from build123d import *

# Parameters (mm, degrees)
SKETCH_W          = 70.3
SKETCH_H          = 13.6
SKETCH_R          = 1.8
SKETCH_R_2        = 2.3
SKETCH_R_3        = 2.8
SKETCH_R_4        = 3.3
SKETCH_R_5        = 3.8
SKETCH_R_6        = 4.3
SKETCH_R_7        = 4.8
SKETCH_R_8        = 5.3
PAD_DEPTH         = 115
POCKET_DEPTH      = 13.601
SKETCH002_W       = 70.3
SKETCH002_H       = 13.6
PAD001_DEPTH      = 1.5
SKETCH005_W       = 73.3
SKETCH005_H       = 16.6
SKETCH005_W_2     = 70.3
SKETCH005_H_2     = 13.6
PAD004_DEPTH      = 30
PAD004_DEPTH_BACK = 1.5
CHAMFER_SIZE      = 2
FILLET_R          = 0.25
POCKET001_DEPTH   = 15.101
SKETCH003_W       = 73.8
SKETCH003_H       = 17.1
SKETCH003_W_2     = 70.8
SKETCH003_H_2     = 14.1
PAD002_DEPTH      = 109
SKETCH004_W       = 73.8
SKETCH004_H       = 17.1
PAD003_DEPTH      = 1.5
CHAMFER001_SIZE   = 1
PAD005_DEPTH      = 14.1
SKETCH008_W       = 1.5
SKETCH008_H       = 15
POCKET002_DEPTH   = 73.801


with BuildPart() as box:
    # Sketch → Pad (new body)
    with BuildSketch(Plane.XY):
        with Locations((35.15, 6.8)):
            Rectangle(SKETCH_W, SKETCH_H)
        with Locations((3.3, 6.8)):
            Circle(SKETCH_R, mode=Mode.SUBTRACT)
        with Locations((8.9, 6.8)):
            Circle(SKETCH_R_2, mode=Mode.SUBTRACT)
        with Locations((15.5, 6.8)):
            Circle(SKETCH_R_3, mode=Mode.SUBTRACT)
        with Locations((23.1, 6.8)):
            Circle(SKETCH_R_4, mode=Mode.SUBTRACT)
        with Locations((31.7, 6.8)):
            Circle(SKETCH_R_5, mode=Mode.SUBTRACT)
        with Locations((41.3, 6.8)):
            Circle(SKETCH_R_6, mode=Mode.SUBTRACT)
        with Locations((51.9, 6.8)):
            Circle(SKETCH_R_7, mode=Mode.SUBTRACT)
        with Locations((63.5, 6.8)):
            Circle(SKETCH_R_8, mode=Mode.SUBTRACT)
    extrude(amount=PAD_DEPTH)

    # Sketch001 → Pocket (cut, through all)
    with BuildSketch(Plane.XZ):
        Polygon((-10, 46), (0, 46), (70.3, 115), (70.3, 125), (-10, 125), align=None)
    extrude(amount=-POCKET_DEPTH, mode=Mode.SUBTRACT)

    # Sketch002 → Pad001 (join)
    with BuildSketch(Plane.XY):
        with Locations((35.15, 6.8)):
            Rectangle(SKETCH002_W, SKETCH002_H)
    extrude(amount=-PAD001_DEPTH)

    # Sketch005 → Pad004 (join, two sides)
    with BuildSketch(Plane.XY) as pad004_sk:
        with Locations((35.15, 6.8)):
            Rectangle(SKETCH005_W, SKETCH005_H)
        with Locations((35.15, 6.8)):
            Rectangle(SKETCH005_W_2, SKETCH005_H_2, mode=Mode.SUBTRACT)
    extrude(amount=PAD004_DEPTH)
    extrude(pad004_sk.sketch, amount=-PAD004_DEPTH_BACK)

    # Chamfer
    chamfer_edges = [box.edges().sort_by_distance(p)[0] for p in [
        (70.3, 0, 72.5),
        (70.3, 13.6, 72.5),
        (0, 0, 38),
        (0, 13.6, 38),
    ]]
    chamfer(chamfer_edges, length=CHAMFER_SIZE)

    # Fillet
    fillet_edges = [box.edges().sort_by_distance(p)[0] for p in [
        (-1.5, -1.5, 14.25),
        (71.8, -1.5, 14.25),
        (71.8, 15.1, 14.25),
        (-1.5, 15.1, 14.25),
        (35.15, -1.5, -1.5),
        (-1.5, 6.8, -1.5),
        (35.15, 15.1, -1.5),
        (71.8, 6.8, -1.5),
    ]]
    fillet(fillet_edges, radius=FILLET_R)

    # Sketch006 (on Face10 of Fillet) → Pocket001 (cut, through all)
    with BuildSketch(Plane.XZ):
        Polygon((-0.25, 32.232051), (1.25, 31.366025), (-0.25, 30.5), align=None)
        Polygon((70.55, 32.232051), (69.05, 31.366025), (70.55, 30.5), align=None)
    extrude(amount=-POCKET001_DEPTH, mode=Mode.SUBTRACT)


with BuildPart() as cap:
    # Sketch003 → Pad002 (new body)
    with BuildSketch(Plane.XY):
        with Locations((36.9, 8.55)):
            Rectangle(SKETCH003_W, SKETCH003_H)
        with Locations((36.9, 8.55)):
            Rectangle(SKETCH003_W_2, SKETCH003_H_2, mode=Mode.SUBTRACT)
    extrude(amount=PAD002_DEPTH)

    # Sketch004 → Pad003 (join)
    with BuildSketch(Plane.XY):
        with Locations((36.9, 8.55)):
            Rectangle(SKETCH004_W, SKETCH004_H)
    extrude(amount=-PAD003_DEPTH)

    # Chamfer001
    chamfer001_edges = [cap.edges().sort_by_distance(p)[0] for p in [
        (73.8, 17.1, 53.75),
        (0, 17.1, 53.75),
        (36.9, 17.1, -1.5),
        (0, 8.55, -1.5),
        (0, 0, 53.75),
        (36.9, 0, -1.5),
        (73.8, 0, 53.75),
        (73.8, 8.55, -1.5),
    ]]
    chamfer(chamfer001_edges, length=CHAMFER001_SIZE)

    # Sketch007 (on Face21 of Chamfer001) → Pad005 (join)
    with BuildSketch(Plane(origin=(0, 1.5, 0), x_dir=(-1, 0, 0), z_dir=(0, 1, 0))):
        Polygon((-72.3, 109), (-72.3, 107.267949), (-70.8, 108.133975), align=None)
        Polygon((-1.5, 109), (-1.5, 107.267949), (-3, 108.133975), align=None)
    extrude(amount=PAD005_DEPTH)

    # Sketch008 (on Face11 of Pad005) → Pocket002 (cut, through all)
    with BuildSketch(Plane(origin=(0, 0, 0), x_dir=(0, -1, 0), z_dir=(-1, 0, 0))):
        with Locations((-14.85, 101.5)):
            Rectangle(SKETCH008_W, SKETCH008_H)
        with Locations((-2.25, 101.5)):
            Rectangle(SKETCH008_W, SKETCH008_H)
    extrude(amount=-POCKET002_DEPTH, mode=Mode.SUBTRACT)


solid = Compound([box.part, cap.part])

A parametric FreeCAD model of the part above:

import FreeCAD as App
import Part
import Sketcher
from FreeCAD import Vector
Q = App.Units.Quantity


def edges_at(feature, points):
    """Names of the edges that pass closest to the given points."""
    edges = feature.Shape.Edges
    near = lambda p: min(range(len(edges)), key=lambda i: edges[i].distToShape(Part.Vertex(*p))[0])
    return sorted({f"Edge{near(p) + 1}" for p in points})

doc = App.newDocument("Part")
params = doc.addObject("Spreadsheet::Sheet", "Params")
for row, (alias, value) in enumerate([
    ("sketch1_diameter", "3.6 mm"),
    ("sketch1_diameter2", "4.6 mm"),
    ("sketch1_diameter3", "5.6 mm"),
    ("sketch1_diameter4", "6.6 mm"),
    ("sketch1_diameter5", "7.6 mm"),
    ("pad1_length", "115 mm"),
    ("sketch2_width", "10 mm"),
    ("sketch2_height", "79 mm"),
    ("sketch2_width2", "80.3 mm"),
    ("sketch3_width", "70.3 mm"),
    ("sketch3_height", "13.6 mm"),
    ("pad2_length", "1.5 mm"),
    ("sketch4_width", "73.3 mm"),
    ("sketch4_width2", "70.3 mm"),
    ("sketch4_height", "16.6 mm"),
    ("sketch4_height2", "13.6 mm"),
    ("pad3_length", "30 mm"),
    ("pad3_length2", "1.5 mm"),
    ("chamfer_size", "2 mm"),
    ("fillet_radius", "0.25 mm"),
    ("sketch6_width", "73.8 mm"),
    ("sketch6_width2", "70.8 mm"),
    ("sketch6_height", "17.1 mm"),
    ("sketch6_height2", "14.1 mm"),
    ("pad4_length", "109 mm"),
    ("sketch7_width", "73.8 mm"),
    ("sketch7_height", "17.1 mm"),
    ("pad5_length", "1.5 mm"),
    ("chamfer2_size", "1 mm"),
    ("pad6_length", "14.1 mm"),
    ("sketch9_height", "15 mm"),
    ("sketch9_width", "1.5 mm"),
], start=1):
    params.set(f"A{row}", alias)
    params.set(f"B{row}", "=" + value)
    params.setAlias(f"B{row}", alias)

body = doc.addObject("PartDesign::Body", "Body")

sketch1 = doc.addObject("Sketcher::SketchObject", "Sketch")
body.addObject(sketch1)
sketch1.AttachmentSupport = (doc.XY_Plane, [""])
sketch1.MapMode = "FlatFace"
sketch1.addGeometry([
    Part.LineSegment(Vector(0, 13.6, 0), Vector(0, 0, 0)),
    Part.LineSegment(Vector(0, 0, 0), Vector(70.3, 0, 0)),
    Part.LineSegment(Vector(70.3, 0, 0), Vector(70.3, 13.6, 0)),
    Part.LineSegment(Vector(70.3, 13.6, 0), Vector(0, 13.6, 0)),
    Part.Circle(Vector(3.3, 6.8, 0), Vector(0, 0, 1), 1.8),
    Part.Circle(Vector(8.9, 6.8, 0), Vector(0, 0, 1), 2.3),
    Part.Circle(Vector(15.5, 6.8, 0), Vector(0, 0, 1), 2.8),
    Part.Circle(Vector(23.1, 6.8, 0), Vector(0, 0, 1), 3.3),
    Part.Circle(Vector(31.7, 6.8, 0), Vector(0, 0, 1), 3.8),
    Part.Circle(Vector(41.3, 6.8, 0), Vector(0, 0, 1), 4.3),
    Part.Circle(Vector(51.9, 6.8, 0), Vector(0, 0, 1), 4.8),
    Part.Circle(Vector(63.5, 6.8, 0), Vector(0, 0, 1), 5.3),
], False)
sketch1.addConstraint([
    Sketcher.Constraint("Coincident", 0, 2, 1, 1),
    Sketcher.Constraint("Coincident", 1, 2, 2, 1),
    Sketcher.Constraint("Coincident", 2, 2, 3, 1),
    Sketcher.Constraint("Coincident", 3, 2, 0, 1),
    Sketcher.Constraint("Vertical", 0),
    Sketcher.Constraint("Horizontal", 1),
    Sketcher.Constraint("Vertical", 2),
    Sketcher.Constraint("Horizontal", 3),
    Sketcher.Constraint("Coincident", 0, 2, -1, 1),
    Sketcher.Constraint("Horizontal", 4, 3, 5, 3),
    Sketcher.Constraint("Horizontal", 5, 3, 6, 3),
    Sketcher.Constraint("Horizontal", 6, 3, 7, 3),
    Sketcher.Constraint("Horizontal", 7, 3, 8, 3),
    Sketcher.Constraint("Horizontal", 8, 3, 9, 3),
    Sketcher.Constraint("Horizontal", 9, 3, 10, 3),
    Sketcher.Constraint("Horizontal", 10, 3, 11, 3),
    Sketcher.Constraint("Diameter", 4, 3.6),
    Sketcher.Constraint("Diameter", 5, 4.6),
    Sketcher.Constraint("Diameter", 6, 5.6),
    Sketcher.Constraint("Diameter", 7, 6.6),
    Sketcher.Constraint("Diameter", 8, 7.6),
    Sketcher.Constraint("Diameter", 9, 8.6),
    Sketcher.Constraint("Diameter", 10, 9.6),
    Sketcher.Constraint("Diameter", 11, 10.6),
    Sketcher.Constraint("DistanceX", 1, 1, 1, 2, 70.3),
    Sketcher.Constraint("DistanceY", 0, 2, 0, 1, 13.6),
    Sketcher.Constraint("DistanceX", 4, 3, 9, 3, 38.0),
    Sketcher.Constraint("DistanceX", 5, 3, 10, 3, 43.0),
    Sketcher.Constraint("DistanceX", 6, 3, 11, 3, 48.0),
    Sketcher.Constraint("DistanceX", 9, 3, 1, 2, 29.0),
    Sketcher.Constraint("DistanceY", -1, 1, 4, 3, 6.8),
    Sketcher.Constraint("DistanceX", -1, 1, 5, 3, 8.9),
    Sketcher.Constraint("DistanceX", -1, 1, 6, 3, 15.5),
    Sketcher.Constraint("DistanceX", -1, 1, 7, 3, 23.1),
    Sketcher.Constraint("DistanceX", -1, 1, 8, 3, 31.7),
])
sketch1.setExpression("Constraints[16]", "Params.sketch1_diameter")
sketch1.setExpression("Constraints[17]", "Params.sketch1_diameter2")
sketch1.setExpression("Constraints[18]", "Params.sketch1_diameter3")
sketch1.setExpression("Constraints[19]", "Params.sketch1_diameter4")
sketch1.setExpression("Constraints[20]", "Params.sketch1_diameter5")
pad1 = doc.addObject("PartDesign::Pad", "Pad")
body.addObject(pad1)
pad1.Profile = sketch1
pad1.setExpression("Length", "Params.pad1_length")

sketch2 = doc.addObject("Sketcher::SketchObject", "Sketch001")
body.addObject(sketch2)
sketch2.AttachmentSupport = (doc.XZ_Plane, [""])
sketch2.MapMode = "FlatFace"
sketch2.addGeometry([
    Part.LineSegment(Vector(-10, 46, 0), Vector(0, 46, 0)),
    Part.LineSegment(Vector(0, 46, 0), Vector(70, 115, 0)),
    Part.LineSegment(Vector(70, 115, 0), Vector(70, 125, 0)),
    Part.LineSegment(Vector(70, 125, 0), Vector(-10, 125, 0)),
    Part.LineSegment(Vector(-10, 125, 0), Vector(-10, 46, 0)),
], False)
sketch2.addConstraint([
    Sketcher.Constraint("Coincident", 0, 2, 1, 1),
    Sketcher.Constraint("Coincident", 1, 2, 2, 1),
    Sketcher.Constraint("Coincident", 2, 2, 3, 1),
    Sketcher.Constraint("Coincident", 3, 2, 4, 1),
    Sketcher.Constraint("Coincident", 4, 2, 0, 1),
    Sketcher.Constraint("Horizontal", 0),
    Sketcher.Constraint("Vertical", 2),
    Sketcher.Constraint("Horizontal", 3),
    Sketcher.Constraint("Vertical", 4),
    Sketcher.Constraint("PointOnObject", 0, 2, -2),
    Sketcher.Constraint("Equal", 0, 2),
    Sketcher.Constraint("DistanceX", 0, 1, 0, 2, 10.0),
    Sketcher.Constraint("DistanceY", 4, 2, 4, 1, 79.0),
    Sketcher.Constraint("DistanceX", 3, 2, 3, 1, 80.3),
    Sketcher.Constraint("DistanceY", -1, 1, 0, 2, 46.0),
])
sketch2.setExpression("Constraints[11]", "Params.sketch2_width")
sketch2.setExpression("Constraints[12]", "Params.sketch2_height")
sketch2.setExpression("Constraints[13]", "Params.sketch2_width2")
pocket1 = doc.addObject("PartDesign::Pocket", "Pocket")
body.addObject(pocket1)
pocket1.Profile = sketch2
pocket1.Type = "ThroughAll"

sketch3 = doc.addObject("Sketcher::SketchObject", "Sketch002")
body.addObject(sketch3)
sketch3.AttachmentSupport = (doc.XY_Plane, [""])
sketch3.MapMode = "FlatFace"
sketch3.addGeometry([
    Part.LineSegment(Vector(0, 14, 0), Vector(0, 0, 0)),
    Part.LineSegment(Vector(0, 0, 0), Vector(70, 0, 0)),
    Part.LineSegment(Vector(70, 0, 0), Vector(70, 14, 0)),
    Part.LineSegment(Vector(70, 14, 0), Vector(0, 14, 0)),
], False)
sketch3.addConstraint([
    Sketcher.Constraint("Coincident", 0, 2, 1, 1),
    Sketcher.Constraint("Coincident", 1, 2, 2, 1),
    Sketcher.Constraint("Coincident", 2, 2, 3, 1),
    Sketcher.Constraint("Coincident", 3, 2, 0, 1),
    Sketcher.Constraint("Vertical", 0),
    Sketcher.Constraint("Horizontal", 1),
    Sketcher.Constraint("Vertical", 2),
    Sketcher.Constraint("Horizontal", 3),
    Sketcher.Constraint("Coincident", 0, 2, -1, 1),
    Sketcher.Constraint("DistanceX", 1, 1, 1, 2, 70.3),
    Sketcher.Constraint("DistanceY", 0, 2, 0, 1, 13.6),
])
sketch3.setExpression("Constraints[9]", "Params.sketch3_width")
sketch3.setExpression("Constraints[10]", "Params.sketch3_height")
pad2 = doc.addObject("PartDesign::Pad", "Pad001")
body.addObject(pad2)
pad2.Profile = sketch3
pad2.setExpression("Length", "Params.pad2_length")
pad2.Reversed = True

sketch4 = doc.addObject("Sketcher::SketchObject", "Sketch003")
body.addObject(sketch4)
sketch4.AttachmentSupport = (doc.XY_Plane, [""])
sketch4.MapMode = "FlatFace"
sketch4.addGeometry([
    Part.LineSegment(Vector(-2, 15, 0), Vector(-2, -2, 0)),
    Part.LineSegment(Vector(-2, -2, 0), Vector(72, -2, 0)),
    Part.LineSegment(Vector(72, -2, 0), Vector(72, 15, 0)),
    Part.LineSegment(Vector(72, 15, 0), Vector(-2, 15, 0)),
    Part.LineSegment(Vector(70, 0, 0), Vector(0, 0, 0)),
    Part.LineSegment(Vector(0, 0, 0), Vector(0, 14, 0)),
    Part.LineSegment(Vector(0, 14, 0), Vector(70, 14, 0)),
    Part.LineSegment(Vector(70, 14, 0), Vector(70, 0, 0)),
], False)
sketch4.addConstraint([
    Sketcher.Constraint("Coincident", 0, 2, 1, 1),
    Sketcher.Constraint("Coincident", 1, 2, 2, 1),
    Sketcher.Constraint("Coincident", 2, 2, 3, 1),
    Sketcher.Constraint("Coincident", 3, 2, 0, 1),
    Sketcher.Constraint("Coincident", 4, 2, 5, 1),
    Sketcher.Constraint("Coincident", 5, 2, 6, 1),
    Sketcher.Constraint("Coincident", 6, 2, 7, 1),
    Sketcher.Constraint("Coincident", 7, 2, 4, 1),
    Sketcher.Constraint("Vertical", 0),
    Sketcher.Constraint("Horizontal", 1),
    Sketcher.Constraint("Vertical", 2),
    Sketcher.Constraint("Horizontal", 3),
    Sketcher.Constraint("Horizontal", 4),
    Sketcher.Constraint("Vertical", 5),
    Sketcher.Constraint("Horizontal", 6),
    Sketcher.Constraint("Vertical", 7),
    Sketcher.Constraint("Coincident", 4, 2, -1, 1),
    Sketcher.Constraint("DistanceX", 1, 1, 1, 2, 73.3),
    Sketcher.Constraint("DistanceX", 4, 2, 4, 1, 70.3),
    Sketcher.Constraint("DistanceY", 0, 2, 0, 1, 16.6),
    Sketcher.Constraint("DistanceY", 5, 1, 5, 2, 13.6),
    Sketcher.Constraint("DistanceX", 0, 2, -1, 1, 1.5),
    Sketcher.Constraint("DistanceY", 0, 2, -1, 1, 1.5),
])
sketch4.setExpression("Constraints[17]", "Params.sketch4_width")
sketch4.setExpression("Constraints[18]", "Params.sketch4_width2")
sketch4.setExpression("Constraints[19]", "Params.sketch4_height")
sketch4.setExpression("Constraints[20]", "Params.sketch4_height2")
pad3 = doc.addObject("PartDesign::Pad", "Pad002")
body.addObject(pad3)
pad3.Profile = sketch4
pad3.Type = "TwoLengths"
pad3.setExpression("Length", "Params.pad3_length")
pad3.setExpression("Length2", "Params.pad3_length2")
doc.recompute()

chamfer = doc.addObject("PartDesign::Chamfer", "Chamfer")
body.addObject(chamfer)
chamfer.Base = (pad3, edges_at(pad3, [
    (70.3, 0, 72.5),
    (70.3, 13.6, 72.5),
    (0, 0, 38),
    (0, 13.6, 38),
]))
chamfer.setExpression("Size", "Params.chamfer_size")
doc.recompute()

fillet = doc.addObject("PartDesign::Fillet", "Fillet")
body.addObject(fillet)
fillet.Base = (chamfer, edges_at(chamfer, [
    (-1.5, -1.5, 14.25),
    (71.8, -1.5, 14.25),
    (71.8, 15.1, 14.25),
    (-1.5, 15.1, 14.25),
    (35.15, -1.5, -1.5),
    (-1.5, 6.8, -1.5),
    (35.15, 15.1, -1.5),
    (71.8, 6.8, -1.5),
]))
fillet.setExpression("Radius", "Params.fillet_radius")

sketch5 = doc.addObject("Sketcher::SketchObject", "Sketch004")
body.addObject(sketch5)
sketch5.AttachmentSupport = (doc.XZ_Plane, [""])
sketch5.MapMode = "FlatFace"
sketch5.addGeometry([
    Part.LineSegment(Vector(1.2, 31.4, 0), Vector(-0.2, 32.2, 0)),
    Part.LineSegment(Vector(-0.2, 32.2, 0), Vector(-0.2, 30.5, 0)),
    Part.LineSegment(Vector(-0.2, 30.5, 0), Vector(1.2, 31.4, 0)),
    Part.LineSegment(Vector(70.5, 32.2, 0), Vector(69, 31.4, 0)),
    Part.LineSegment(Vector(69, 31.4, 0), Vector(70.5, 30.5, 0)),
    Part.LineSegment(Vector(70.5, 30.5, 0), Vector(70.5, 32.2, 0)),
], False)
sketch5.addConstraint([
    Sketcher.Constraint("Coincident", 0, 2, 1, 1),
    Sketcher.Constraint("Coincident", 1, 2, 2, 1),
    Sketcher.Constraint("Coincident", 2, 2, 0, 1),
    Sketcher.Constraint("Coincident", 3, 2, 4, 1),
    Sketcher.Constraint("Coincident", 4, 2, 5, 1),
    Sketcher.Constraint("Coincident", 5, 2, 3, 1),
    Sketcher.Constraint("Vertical", 1),
    Sketcher.Constraint("Vertical", 5),
    Sketcher.Constraint("Parallel", 2, 3),
    Sketcher.Constraint("Parallel", 0, 4),
    Sketcher.Constraint("Horizontal", 2, 2, 3, 2),
    Sketcher.Constraint("Horizontal", 1, 2, 4, 2),
    Sketcher.Constraint("Horizontal", 0, 2, 5, 2),
    Sketcher.Constraint("Angle", 0, Q("149.999983 deg")),
    Sketcher.Constraint("DistanceY", -1, 1, 1, 2, 30.5),
    Sketcher.Constraint("DistanceX", 1, 2, 2, 2, 1.5),
    Sketcher.Constraint("DistanceX", 2, 2, 3, 2, 67.8),
    Sketcher.Constraint("DistanceX", 0, 2, -1, 1, 0.25),
])
pocket2 = doc.addObject("PartDesign::Pocket", "Pocket001")
body.addObject(pocket2)
pocket2.Profile = sketch5
pocket2.Type = "ThroughAll"
body2 = doc.addObject("PartDesign::Body", "Body001")

sketch6 = doc.addObject("Sketcher::SketchObject", "Sketch005")
body2.addObject(sketch6)
sketch6.AttachmentSupport = (doc.getObject("XY_Plane001"), [""])
sketch6.MapMode = "FlatFace"
sketch6.addGeometry([
    Part.LineSegment(Vector(0, 17, 0), Vector(0, 0, 0)),
    Part.LineSegment(Vector(0, 0, 0), Vector(74, 0, 0)),
    Part.LineSegment(Vector(74, 0, 0), Vector(74, 17, 0)),
    Part.LineSegment(Vector(74, 17, 0), Vector(0, 17, 0)),
    Part.LineSegment(Vector(72, 2, 0), Vector(2, 2, 0)),
    Part.LineSegment(Vector(2, 2, 0), Vector(2, 16, 0)),
    Part.LineSegment(Vector(2, 16, 0), Vector(72, 16, 0)),
    Part.LineSegment(Vector(72, 16, 0), Vector(72, 2, 0)),
], False)
sketch6.addConstraint([
    Sketcher.Constraint("Coincident", 0, 2, 1, 1),
    Sketcher.Constraint("Coincident", 1, 2, 2, 1),
    Sketcher.Constraint("Coincident", 2, 2, 3, 1),
    Sketcher.Constraint("Coincident", 3, 2, 0, 1),
    Sketcher.Constraint("Coincident", 4, 2, 5, 1),
    Sketcher.Constraint("Coincident", 5, 2, 6, 1),
    Sketcher.Constraint("Coincident", 6, 2, 7, 1),
    Sketcher.Constraint("Coincident", 7, 2, 4, 1),
    Sketcher.Constraint("Vertical", 0),
    Sketcher.Constraint("Horizontal", 1),
    Sketcher.Constraint("Vertical", 2),
    Sketcher.Constraint("Horizontal", 3),
    Sketcher.Constraint("Horizontal", 4),
    Sketcher.Constraint("Vertical", 5),
    Sketcher.Constraint("Horizontal", 6),
    Sketcher.Constraint("Vertical", 7),
    Sketcher.Constraint("Coincident", 0, 2, -1, 1),
    Sketcher.Constraint("DistanceX", 1, 1, 1, 2, 73.8),
    Sketcher.Constraint("DistanceX", 4, 2, 4, 1, 70.8),
    Sketcher.Constraint("DistanceY", 0, 2, 0, 1, 17.1),
    Sketcher.Constraint("DistanceY", 5, 1, 5, 2, 14.1),
    Sketcher.Constraint("DistanceX", -1, 1, 4, 2, 1.5),
    Sketcher.Constraint("DistanceY", -1, 1, 4, 2, 1.5),
])
sketch6.setExpression("Constraints[17]", "Params.sketch6_width")
sketch6.setExpression("Constraints[18]", "Params.sketch6_width2")
sketch6.setExpression("Constraints[19]", "Params.sketch6_height")
sketch6.setExpression("Constraints[20]", "Params.sketch6_height2")
pad4 = doc.addObject("PartDesign::Pad", "Pad003")
body2.addObject(pad4)
pad4.Profile = sketch6
pad4.setExpression("Length", "Params.pad4_length")

sketch7 = doc.addObject("Sketcher::SketchObject", "Sketch006")
body2.addObject(sketch7)
sketch7.AttachmentSupport = (doc.getObject("XY_Plane001"), [""])
sketch7.MapMode = "FlatFace"
sketch7.addGeometry([
    Part.LineSegment(Vector(0, 17, 0), Vector(0, 0, 0)),
    Part.LineSegment(Vector(0, 0, 0), Vector(74, 0, 0)),
    Part.LineSegment(Vector(74, 0, 0), Vector(74, 17, 0)),
    Part.LineSegment(Vector(74, 17, 0), Vector(0, 17, 0)),
], False)
sketch7.addConstraint([
    Sketcher.Constraint("Coincident", 0, 2, 1, 1),
    Sketcher.Constraint("Coincident", 1, 2, 2, 1),
    Sketcher.Constraint("Coincident", 2, 2, 3, 1),
    Sketcher.Constraint("Coincident", 3, 2, 0, 1),
    Sketcher.Constraint("Vertical", 0),
    Sketcher.Constraint("Horizontal", 1),
    Sketcher.Constraint("Vertical", 2),
    Sketcher.Constraint("Horizontal", 3),
    Sketcher.Constraint("Coincident", 0, 2, -1, 1),
    Sketcher.Constraint("DistanceX", 1, 1, 1, 2, 73.8),
    Sketcher.Constraint("DistanceY", 0, 2, 0, 1, 17.1),
])
sketch7.setExpression("Constraints[9]", "Params.sketch7_width")
sketch7.setExpression("Constraints[10]", "Params.sketch7_height")
pad5 = doc.addObject("PartDesign::Pad", "Pad004")
body2.addObject(pad5)
pad5.Profile = sketch7
pad5.setExpression("Length", "Params.pad5_length")
pad5.Reversed = True
doc.recompute()

chamfer2 = doc.addObject("PartDesign::Chamfer", "Chamfer001")
body2.addObject(chamfer2)
chamfer2.Base = (pad5, edges_at(pad5, [
    (73.8, 17.1, 53.75),
    (0, 17.1, 53.75),
    (36.9, 17.1, -1.5),
    (0, 8.55, -1.5),
    (0, 0, 53.75),
    (36.9, 0, -1.5),
    (73.8, 0, 53.75),
    (73.8, 8.55, -1.5),
]))
chamfer2.setExpression("Size", "Params.chamfer2_size")

sketch8 = doc.addObject("Sketcher::SketchObject", "Sketch007")
body2.addObject(sketch8)
sketch8.AttachmentSupport = (doc.getObject("XZ_Plane001"), [""])
sketch8.MapMode = "FlatFace"
sketch8.AttachmentOffset = App.Placement(Vector(0, 0, -1.5), App.Rotation())
sketch8.addGeometry([
    Part.LineSegment(Vector(72.3, 109, 0), Vector(72.3, 107.3, 0)),
    Part.LineSegment(Vector(72.3, 107.3, 0), Vector(70.8, 108.1, 0)),
    Part.LineSegment(Vector(70.8, 108.1, 0), Vector(72.3, 109, 0)),
    Part.LineSegment(Vector(1.5, 107.3, 0), Vector(1.5, 109, 0)),
    Part.LineSegment(Vector(1.5, 109, 0), Vector(3, 108.1, 0)),
    Part.LineSegment(Vector(3, 108.1, 0), Vector(1.5, 107.3, 0)),
], False)
sketch8.addConstraint([
    Sketcher.Constraint("Coincident", 0, 2, 1, 1),
    Sketcher.Constraint("Coincident", 1, 2, 2, 1),
    Sketcher.Constraint("Coincident", 2, 2, 0, 1),
    Sketcher.Constraint("Coincident", 3, 2, 4, 1),
    Sketcher.Constraint("Coincident", 4, 2, 5, 1),
    Sketcher.Constraint("Coincident", 5, 2, 3, 1),
    Sketcher.Constraint("Vertical", 0),
    Sketcher.Constraint("Vertical", 3),
    Sketcher.Constraint("Parallel", 1, 4),
    Sketcher.Constraint("Parallel", 2, 5),
    Sketcher.Constraint("Horizontal", 2, 2, 3, 2),
    Sketcher.Constraint("Horizontal", 1, 2, 4, 2),
    Sketcher.Constraint("Horizontal", 0, 2, 5, 2),
    Sketcher.Constraint("Angle", 1, Q("149.999983 deg")),
    Sketcher.Constraint("DistanceY", -1, 1, 2, 2, 109.0),
    Sketcher.Constraint("DistanceX", -1, 1, 4, 2, 3.0),
    Sketcher.Constraint("DistanceX", -1, 1, 0, 2, 72.3),
    Sketcher.Constraint("DistanceX", -1, 1, 1, 2, 70.8),
])
pad6 = doc.addObject("PartDesign::Pad", "Pad005")
body2.addObject(pad6)
pad6.Profile = sketch8
pad6.setExpression("Length", "Params.pad6_length")
pad6.Reversed = True

sketch9 = doc.addObject("Sketcher::SketchObject", "Sketch008")
body2.addObject(sketch9)
sketch9.AttachmentSupport = (doc.getObject("YZ_Plane001"), [""])
sketch9.MapMode = "FlatFace"
sketch9.addGeometry([
    Part.LineSegment(Vector(15.6, 109, 0), Vector(15.6, 94, 0)),
    Part.LineSegment(Vector(15.6, 94, 0), Vector(14.1, 94, 0)),
    Part.LineSegment(Vector(14.1, 94, 0), Vector(14.1, 109, 0)),
    Part.LineSegment(Vector(14.1, 109, 0), Vector(15.6, 109, 0)),
    Part.LineSegment(Vector(3, 109, 0), Vector(3, 94, 0)),
    Part.LineSegment(Vector(3, 94, 0), Vector(1.5, 94, 0)),
    Part.LineSegment(Vector(1.5, 94, 0), Vector(1.5, 109, 0)),
    Part.LineSegment(Vector(1.5, 109, 0), Vector(3, 109, 0)),
], False)
sketch9.addConstraint([
    Sketcher.Constraint("Coincident", 0, 2, 1, 1),
    Sketcher.Constraint("Coincident", 1, 2, 2, 1),
    Sketcher.Constraint("Coincident", 2, 2, 3, 1),
    Sketcher.Constraint("Coincident", 3, 2, 0, 1),
    Sketcher.Constraint("Coincident", 4, 2, 5, 1),
    Sketcher.Constraint("Coincident", 5, 2, 6, 1),
    Sketcher.Constraint("Coincident", 6, 2, 7, 1),
    Sketcher.Constraint("Coincident", 7, 2, 4, 1),
    Sketcher.Constraint("Vertical", 0),
    Sketcher.Constraint("Horizontal", 1),
    Sketcher.Constraint("Vertical", 2),
    Sketcher.Constraint("Horizontal", 3),
    Sketcher.Constraint("Vertical", 4),
    Sketcher.Constraint("Horizontal", 5),
    Sketcher.Constraint("Vertical", 6),
    Sketcher.Constraint("Horizontal", 7),
    Sketcher.Constraint("Horizontal", 1, 2, 4, 2),
    Sketcher.Constraint("Horizontal", 3, 2, 6, 2),
    Sketcher.Constraint("Equal", 3, 5),
    Sketcher.Constraint("DistanceY", 0, 2, 0, 1, 15.0),
    Sketcher.Constraint("DistanceX", 1, 2, 1, 1, 1.5),
    Sketcher.Constraint("DistanceY", -1, 1, 0, 2, 94.0),
    Sketcher.Constraint("DistanceX", -1, 1, 4, 2, 3.0),
    Sketcher.Constraint("DistanceX", -1, 1, 0, 2, 15.6),
])
sketch9.setExpression("Constraints[19]", "Params.sketch9_height")
sketch9.setExpression("Constraints[20]", "Params.sketch9_width")
pocket3 = doc.addObject("PartDesign::Pocket", "Pocket002")
body2.addObject(pocket3)
pocket3.Profile = sketch9
pocket3.Type = "ThroughAll"
pocket3.Reversed = True

doc.recompute()
